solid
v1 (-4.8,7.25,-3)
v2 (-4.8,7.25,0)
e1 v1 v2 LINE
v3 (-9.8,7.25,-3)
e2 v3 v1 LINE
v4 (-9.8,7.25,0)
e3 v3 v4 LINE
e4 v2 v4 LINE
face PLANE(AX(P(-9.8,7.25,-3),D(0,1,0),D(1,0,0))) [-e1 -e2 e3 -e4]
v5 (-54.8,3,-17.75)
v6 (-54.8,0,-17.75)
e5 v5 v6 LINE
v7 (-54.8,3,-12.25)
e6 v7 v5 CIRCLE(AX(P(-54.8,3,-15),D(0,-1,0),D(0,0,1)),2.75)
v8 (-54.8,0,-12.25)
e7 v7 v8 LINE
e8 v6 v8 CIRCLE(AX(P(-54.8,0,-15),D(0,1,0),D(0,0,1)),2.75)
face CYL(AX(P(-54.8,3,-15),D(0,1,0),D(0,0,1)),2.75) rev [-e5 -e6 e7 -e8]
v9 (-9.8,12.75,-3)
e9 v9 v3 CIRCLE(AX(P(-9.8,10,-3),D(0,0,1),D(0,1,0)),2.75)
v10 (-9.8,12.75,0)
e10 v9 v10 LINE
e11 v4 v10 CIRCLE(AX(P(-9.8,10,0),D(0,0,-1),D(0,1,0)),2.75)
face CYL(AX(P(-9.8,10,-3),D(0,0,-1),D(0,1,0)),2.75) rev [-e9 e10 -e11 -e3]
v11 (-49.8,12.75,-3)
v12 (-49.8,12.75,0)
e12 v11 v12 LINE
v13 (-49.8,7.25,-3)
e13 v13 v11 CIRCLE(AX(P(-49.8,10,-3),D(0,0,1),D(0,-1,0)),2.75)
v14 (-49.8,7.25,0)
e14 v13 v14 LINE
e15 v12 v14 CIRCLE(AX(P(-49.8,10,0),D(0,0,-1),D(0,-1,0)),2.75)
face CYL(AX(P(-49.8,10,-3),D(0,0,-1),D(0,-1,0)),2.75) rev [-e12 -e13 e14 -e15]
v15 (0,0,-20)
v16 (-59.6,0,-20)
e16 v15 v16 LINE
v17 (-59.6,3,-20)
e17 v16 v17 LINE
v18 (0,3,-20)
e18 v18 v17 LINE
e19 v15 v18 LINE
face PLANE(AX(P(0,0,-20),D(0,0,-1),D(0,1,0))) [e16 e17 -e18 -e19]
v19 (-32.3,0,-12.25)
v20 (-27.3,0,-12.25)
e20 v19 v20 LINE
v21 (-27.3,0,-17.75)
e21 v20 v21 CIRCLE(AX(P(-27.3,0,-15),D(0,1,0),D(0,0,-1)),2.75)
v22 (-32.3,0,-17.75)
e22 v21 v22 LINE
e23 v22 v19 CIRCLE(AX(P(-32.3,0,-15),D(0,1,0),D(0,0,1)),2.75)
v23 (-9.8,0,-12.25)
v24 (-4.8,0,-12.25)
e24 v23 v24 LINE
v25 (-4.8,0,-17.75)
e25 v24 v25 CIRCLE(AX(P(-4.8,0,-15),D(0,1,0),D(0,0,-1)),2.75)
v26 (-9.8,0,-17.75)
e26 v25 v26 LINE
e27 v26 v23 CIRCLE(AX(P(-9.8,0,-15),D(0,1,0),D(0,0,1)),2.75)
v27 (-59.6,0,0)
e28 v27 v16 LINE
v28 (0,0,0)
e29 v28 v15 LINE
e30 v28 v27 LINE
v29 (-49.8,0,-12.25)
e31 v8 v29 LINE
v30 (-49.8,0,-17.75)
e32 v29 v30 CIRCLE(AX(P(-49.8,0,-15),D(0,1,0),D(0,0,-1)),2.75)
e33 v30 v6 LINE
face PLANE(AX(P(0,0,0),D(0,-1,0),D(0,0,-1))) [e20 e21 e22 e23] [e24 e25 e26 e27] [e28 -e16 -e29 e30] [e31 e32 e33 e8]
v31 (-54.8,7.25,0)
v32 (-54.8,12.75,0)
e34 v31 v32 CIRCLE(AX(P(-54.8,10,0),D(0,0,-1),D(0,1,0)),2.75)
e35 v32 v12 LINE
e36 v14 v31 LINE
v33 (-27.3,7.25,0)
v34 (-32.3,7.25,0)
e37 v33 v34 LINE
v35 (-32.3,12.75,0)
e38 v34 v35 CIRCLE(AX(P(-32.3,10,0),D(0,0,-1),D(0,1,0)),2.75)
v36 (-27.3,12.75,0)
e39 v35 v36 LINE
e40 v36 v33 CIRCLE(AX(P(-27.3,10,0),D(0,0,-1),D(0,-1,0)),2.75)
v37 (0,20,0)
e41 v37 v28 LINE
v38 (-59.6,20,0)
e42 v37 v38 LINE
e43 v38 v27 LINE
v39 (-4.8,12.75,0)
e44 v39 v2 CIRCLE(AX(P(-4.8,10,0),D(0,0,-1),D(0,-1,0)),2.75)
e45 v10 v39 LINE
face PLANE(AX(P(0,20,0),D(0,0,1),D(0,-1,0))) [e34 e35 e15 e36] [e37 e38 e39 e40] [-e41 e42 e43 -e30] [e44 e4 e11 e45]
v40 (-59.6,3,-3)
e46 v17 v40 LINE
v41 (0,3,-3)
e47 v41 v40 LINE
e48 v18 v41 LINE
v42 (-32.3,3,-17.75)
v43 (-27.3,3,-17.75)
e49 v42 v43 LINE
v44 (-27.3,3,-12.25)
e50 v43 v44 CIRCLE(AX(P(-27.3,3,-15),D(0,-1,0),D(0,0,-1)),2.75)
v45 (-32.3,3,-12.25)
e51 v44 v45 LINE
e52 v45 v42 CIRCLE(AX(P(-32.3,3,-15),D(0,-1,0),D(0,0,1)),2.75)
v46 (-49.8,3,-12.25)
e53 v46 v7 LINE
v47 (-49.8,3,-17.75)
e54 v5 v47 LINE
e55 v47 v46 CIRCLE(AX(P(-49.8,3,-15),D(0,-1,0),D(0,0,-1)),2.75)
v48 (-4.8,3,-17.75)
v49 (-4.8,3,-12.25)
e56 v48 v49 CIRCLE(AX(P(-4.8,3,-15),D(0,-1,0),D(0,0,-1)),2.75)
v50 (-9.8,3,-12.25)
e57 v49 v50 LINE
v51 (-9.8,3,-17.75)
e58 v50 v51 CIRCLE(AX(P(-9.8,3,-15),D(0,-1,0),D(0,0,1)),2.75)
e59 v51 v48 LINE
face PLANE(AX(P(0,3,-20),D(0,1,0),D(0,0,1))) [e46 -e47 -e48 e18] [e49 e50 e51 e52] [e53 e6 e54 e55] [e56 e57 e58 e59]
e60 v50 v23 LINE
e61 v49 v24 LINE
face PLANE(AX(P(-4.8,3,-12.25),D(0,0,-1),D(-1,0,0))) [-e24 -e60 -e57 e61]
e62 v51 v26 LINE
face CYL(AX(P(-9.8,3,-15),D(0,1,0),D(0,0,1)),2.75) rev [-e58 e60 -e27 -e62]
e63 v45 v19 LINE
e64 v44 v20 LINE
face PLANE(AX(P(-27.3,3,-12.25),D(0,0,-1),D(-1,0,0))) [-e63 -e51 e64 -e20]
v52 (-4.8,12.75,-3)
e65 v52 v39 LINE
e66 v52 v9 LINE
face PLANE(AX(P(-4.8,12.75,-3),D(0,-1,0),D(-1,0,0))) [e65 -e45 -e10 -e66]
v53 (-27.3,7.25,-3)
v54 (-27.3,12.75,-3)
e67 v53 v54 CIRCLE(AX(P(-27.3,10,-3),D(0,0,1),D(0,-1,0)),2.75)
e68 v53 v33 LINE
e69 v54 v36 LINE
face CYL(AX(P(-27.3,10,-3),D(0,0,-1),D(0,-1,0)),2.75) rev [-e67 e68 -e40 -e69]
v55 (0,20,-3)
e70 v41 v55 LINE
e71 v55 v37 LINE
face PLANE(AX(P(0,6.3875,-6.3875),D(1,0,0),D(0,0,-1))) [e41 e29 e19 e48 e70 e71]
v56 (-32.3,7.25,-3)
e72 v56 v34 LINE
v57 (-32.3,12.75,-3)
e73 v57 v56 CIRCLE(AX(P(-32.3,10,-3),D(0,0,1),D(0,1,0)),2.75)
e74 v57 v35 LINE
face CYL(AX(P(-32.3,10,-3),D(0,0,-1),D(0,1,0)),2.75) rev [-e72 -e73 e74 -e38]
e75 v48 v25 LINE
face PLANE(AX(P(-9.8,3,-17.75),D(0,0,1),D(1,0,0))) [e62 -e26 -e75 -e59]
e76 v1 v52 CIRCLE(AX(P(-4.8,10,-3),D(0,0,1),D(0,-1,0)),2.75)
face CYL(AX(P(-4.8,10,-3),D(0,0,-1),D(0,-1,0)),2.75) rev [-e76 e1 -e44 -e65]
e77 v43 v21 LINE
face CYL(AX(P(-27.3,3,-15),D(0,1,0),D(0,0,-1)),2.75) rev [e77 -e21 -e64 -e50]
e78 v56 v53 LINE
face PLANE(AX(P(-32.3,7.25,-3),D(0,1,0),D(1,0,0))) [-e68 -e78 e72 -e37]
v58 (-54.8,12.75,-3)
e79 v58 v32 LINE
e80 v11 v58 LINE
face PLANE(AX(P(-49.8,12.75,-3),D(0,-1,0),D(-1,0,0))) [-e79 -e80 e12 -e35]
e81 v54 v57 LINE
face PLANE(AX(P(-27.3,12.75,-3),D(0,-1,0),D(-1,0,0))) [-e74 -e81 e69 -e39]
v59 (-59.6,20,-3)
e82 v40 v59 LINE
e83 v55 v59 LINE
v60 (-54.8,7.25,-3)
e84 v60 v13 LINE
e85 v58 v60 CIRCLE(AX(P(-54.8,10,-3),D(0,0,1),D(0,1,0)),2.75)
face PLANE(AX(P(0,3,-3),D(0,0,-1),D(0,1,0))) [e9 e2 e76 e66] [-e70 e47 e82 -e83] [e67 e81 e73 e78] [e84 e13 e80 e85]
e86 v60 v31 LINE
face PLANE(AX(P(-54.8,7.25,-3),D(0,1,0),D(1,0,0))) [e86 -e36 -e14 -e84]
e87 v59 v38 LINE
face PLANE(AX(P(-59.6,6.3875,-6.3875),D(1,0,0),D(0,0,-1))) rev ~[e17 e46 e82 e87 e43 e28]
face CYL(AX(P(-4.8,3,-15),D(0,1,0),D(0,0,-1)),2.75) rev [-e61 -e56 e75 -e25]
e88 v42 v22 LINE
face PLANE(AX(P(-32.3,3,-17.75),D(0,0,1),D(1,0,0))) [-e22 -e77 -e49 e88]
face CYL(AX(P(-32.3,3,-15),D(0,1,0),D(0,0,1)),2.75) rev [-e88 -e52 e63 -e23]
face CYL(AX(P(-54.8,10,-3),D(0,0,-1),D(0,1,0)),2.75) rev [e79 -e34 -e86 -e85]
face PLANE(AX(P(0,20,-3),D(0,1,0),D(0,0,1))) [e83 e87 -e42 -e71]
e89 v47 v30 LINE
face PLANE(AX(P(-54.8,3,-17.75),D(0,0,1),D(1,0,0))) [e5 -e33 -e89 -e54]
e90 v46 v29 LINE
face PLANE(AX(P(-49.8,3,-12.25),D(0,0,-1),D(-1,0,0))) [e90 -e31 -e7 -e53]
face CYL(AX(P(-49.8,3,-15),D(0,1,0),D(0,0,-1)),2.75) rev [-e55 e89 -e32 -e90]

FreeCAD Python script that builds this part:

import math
import FreeCAD as App
import Part
import Sketcher
Q = App.Units.Quantity


def add_polygon(sketch, points):
    """Adds a closed chain of lines whose ends are joined by coincident constraints."""
    first, n = sketch.GeometryCount, len(points)
    for a, b in zip(points, points[1:] + points[:1]):
        sketch.addGeometry(Part.LineSegment(App.Vector(*a, 0), App.Vector(*b, 0)), False)
    for i in range(n):
        sketch.addConstraint(Sketcher.Constraint("Coincident", first + i, 2, first + (i + 1) % n, 1))

doc = App.newDocument("Part")
body = doc.addObject("PartDesign::Body", "Body")

# Sketch on YZ plane
sketch1 = doc.addObject("Sketcher::SketchObject", "Sketch")
body.addObject(sketch1)
sketch1.AttachmentSupport = (doc.YZ_Plane, [""])
sketch1.MapMode = "FlatFace"
add_polygon(sketch1, [(20, 0), (0, 0), (0, -20), (3, -20), (3, -3), (20, -3)])  # lines 0-5
sketch1.addConstraint(Sketcher.Constraint("Horizontal", 0))
sketch1.addConstraint(Sketcher.Constraint("Vertical", 1))
sketch1.addConstraint(Sketcher.Constraint("Horizontal", 2))
sketch1.addConstraint(Sketcher.Constraint("Vertical", 3))
sketch1.addConstraint(Sketcher.Constraint("Horizontal", 4))
sketch1.addConstraint(Sketcher.Constraint("Vertical", 5))
sketch1.addConstraint(Sketcher.Constraint("Coincident", 0, 2, -1, 1))
sketch1.addConstraint(Sketcher.Constraint("Equal", 0, 1))
sketch1.addConstraint(Sketcher.Constraint("Equal", 4, 3))
sketch1.addConstraint(Sketcher.Constraint("DistanceX", 0, 2, 0, 1, Q("20 mm")))
sketch1.addConstraint(Sketcher.Constraint("DistanceX", 2, 1, 2, 2, Q("3 mm")))
pad1 = doc.addObject("PartDesign::Pad", "Pad")
body.addObject(pad1)
pad1.Profile = sketch1
pad1.Length = 59.6
pad1.Reversed = True

# Sketch on XY plane
sketch2 = doc.addObject("Sketcher::SketchObject", "Sketch001")
body.addObject(sketch2)
sketch2.AttachmentSupport = (doc.XY_Plane, [""])
sketch2.MapMode = "FlatFace"
sketch2.AttachmentOffset = App.Placement(App.Vector(0, 0, -3), App.Rotation())
sketch2.addGeometry(Part.LineSegment(App.Vector(-32.3, 12.8, 0), App.Vector(-27.3, 12.8, 0)), False)
sketch2.addGeometry(Part.ArcOfCircle(Part.Circle(App.Vector(-27.3, 10, 0), App.Vector(0, 0, 1), 2.8), math.radians(-90), math.radians(90)), False)
sketch2.addGeometry(Part.LineSegment(App.Vector(-27.3, 7.2, 0), App.Vector(-32.3, 7.2, 0)), False)
sketch2.addGeometry(Part.ArcOfCircle(Part.Circle(App.Vector(-32.3, 10, 0), App.Vector(0, 0, 1), 2.8), math.radians(90), math.radians(270)), False)
sketch2.addConstraint(Sketcher.Constraint("Tangent", 0, 2, 1, 2))
sketch2.addConstraint(Sketcher.Constraint("Tangent", 1, 1, 2, 1))
sketch2.addConstraint(Sketcher.Constraint("Tangent", 2, 2, 3, 2))
sketch2.addConstraint(Sketcher.Constraint("Tangent", 3, 1, 0, 1))
sketch2.addConstraint(Sketcher.Constraint("Horizontal", 0))
sketch2.addConstraint(Sketcher.Constraint("Horizontal", 2))
sketch2.addConstraint(Sketcher.Constraint("DistanceX", 0, 1, 0, 2, Q("5 mm")))
sketch2.addConstraint(Sketcher.Constraint("Radius", 1, Q("2.75 mm")))
sketch2.addConstraint(Sketcher.Constraint("DistanceY", -1, 1, 1, 3, Q("10 mm")))
sketch2.addConstraint(Sketcher.Constraint("DistanceX", 1, 3, -1, 1, Q("27.3 mm")))
pocket1 = doc.addObject("PartDesign::Pocket", "Pocket")
body.addObject(pocket1)
pocket1.Profile = sketch2
pocket1.Type = "ThroughAll"
pocket1.Reversed = True
doc.recompute()

linearpattern = doc.addObject("PartDesign::LinearPattern", "LinearPattern")
body.addObject(linearpattern)
linearpattern.Originals = [pocket1]
linearpattern.Direction = (doc.X_Axis, [""])
linearpattern.Mode = "offset"
linearpattern.Offset = 22.5
linearpattern.Occurrences = 2
linearpattern.Reversed = True
body.Tip = linearpattern
doc.recompute()

linearpattern2 = doc.addObject("PartDesign::LinearPattern", "LinearPattern001")
body.addObject(linearpattern2)
linearpattern2.Originals = [pocket1]
linearpattern2.Direction = (doc.X_Axis, [""])
linearpattern2.Mode = "offset"
linearpattern2.Offset = 22.5
linearpattern2.Occurrences = 2
body.Tip = linearpattern2

# Sketch on XZ plane
sketch3 = doc.addObject("Sketcher::SketchObject", "Sketch002")
body.addObject(sketch3)
sketch3.AttachmentSupport = (doc.XZ_Plane, [""])
sketch3.MapMode = "FlatFace"
sketch3.AttachmentOffset = App.Placement(App.Vector(0, 0, -3), App.Rotation())
sketch3.addGeometry(Part.LineSegment(App.Vector(-32.3, -12.2, 0), App.Vector(-27.3, -12.2, 0)), False)
sketch3.addGeometry(Part.ArcOfCircle(Part.Circle(App.Vector(-27.3, -15, 0), App.Vector(0, 0, 1), 2.8), math.radians(-90), math.radians(90)), False)
sketch3.addGeometry(Part.LineSegment(App.Vector(-27.3, -17.8, 0), App.Vector(-32.3, -17.8, 0)), False)
sketch3.addGeometry(Part.ArcOfCircle(Part.Circle(App.Vector(-32.3, -15, 0), App.Vector(0, 0, 1), 2.8), math.radians(90), math.radians(270)), False)
sketch3.addConstraint(Sketcher.Constraint("Tangent", 0, 2, 1, 2))
sketch3.addConstraint(Sketcher.Constraint("Tangent", 1, 1, 2, 1))
sketch3.addConstraint(Sketcher.Constraint("Tangent", 2, 2, 3, 2))
sketch3.addConstraint(Sketcher.Constraint("Tangent", 3, 1, 0, 1))
sketch3.addConstraint(Sketcher.Constraint("Horizontal", 0))
sketch3.addConstraint(Sketcher.Constraint("Horizontal", 2))
sketch3.addConstraint(Sketcher.Constraint("DistanceX", 0, 1, 0, 2, Q("5 mm")))
sketch3.addConstraint(Sketcher.Constraint("Radius", 1, Q("2.75 mm")))
sketch3.addConstraint(Sketcher.Constraint("DistanceY", 1, 3, -1, 1, Q("15 mm")))
sketch3.addConstraint(Sketcher.Constraint("DistanceX", 1, 3, -1, 1, Q("27.3 mm")))
pocket2 = doc.addObject("PartDesign::Pocket", "Pocket001")
body.addObject(pocket2)
pocket2.Profile = sketch3
pocket2.Type = "ThroughAll"
pocket2.Reversed = True
doc.recompute()

linearpattern3 = doc.addObject("PartDesign::LinearPattern", "LinearPattern002")
body.addObject(linearpattern3)
linearpattern3.Originals = [pocket2]
linearpattern3.Direction = (doc.X_Axis, [""])
linearpattern3.Mode = "offset"
linearpattern3.Offset = 22.5
linearpattern3.Occurrences = 2
linearpattern3.Reversed = True
body.Tip = linearpattern3
doc.recompute()

linearpattern4 = doc.addObject("PartDesign::LinearPattern", "LinearPattern003")
body.addObject(linearpattern4)
linearpattern4.Originals = [pocket2]
linearpattern4.Direction = (doc.X_Axis, [""])
linearpattern4.Mode = "offset"
linearpattern4.Offset = 22.5
linearpattern4.Occurrences = 2
body.Tip = linearpattern4

doc.recompute()
